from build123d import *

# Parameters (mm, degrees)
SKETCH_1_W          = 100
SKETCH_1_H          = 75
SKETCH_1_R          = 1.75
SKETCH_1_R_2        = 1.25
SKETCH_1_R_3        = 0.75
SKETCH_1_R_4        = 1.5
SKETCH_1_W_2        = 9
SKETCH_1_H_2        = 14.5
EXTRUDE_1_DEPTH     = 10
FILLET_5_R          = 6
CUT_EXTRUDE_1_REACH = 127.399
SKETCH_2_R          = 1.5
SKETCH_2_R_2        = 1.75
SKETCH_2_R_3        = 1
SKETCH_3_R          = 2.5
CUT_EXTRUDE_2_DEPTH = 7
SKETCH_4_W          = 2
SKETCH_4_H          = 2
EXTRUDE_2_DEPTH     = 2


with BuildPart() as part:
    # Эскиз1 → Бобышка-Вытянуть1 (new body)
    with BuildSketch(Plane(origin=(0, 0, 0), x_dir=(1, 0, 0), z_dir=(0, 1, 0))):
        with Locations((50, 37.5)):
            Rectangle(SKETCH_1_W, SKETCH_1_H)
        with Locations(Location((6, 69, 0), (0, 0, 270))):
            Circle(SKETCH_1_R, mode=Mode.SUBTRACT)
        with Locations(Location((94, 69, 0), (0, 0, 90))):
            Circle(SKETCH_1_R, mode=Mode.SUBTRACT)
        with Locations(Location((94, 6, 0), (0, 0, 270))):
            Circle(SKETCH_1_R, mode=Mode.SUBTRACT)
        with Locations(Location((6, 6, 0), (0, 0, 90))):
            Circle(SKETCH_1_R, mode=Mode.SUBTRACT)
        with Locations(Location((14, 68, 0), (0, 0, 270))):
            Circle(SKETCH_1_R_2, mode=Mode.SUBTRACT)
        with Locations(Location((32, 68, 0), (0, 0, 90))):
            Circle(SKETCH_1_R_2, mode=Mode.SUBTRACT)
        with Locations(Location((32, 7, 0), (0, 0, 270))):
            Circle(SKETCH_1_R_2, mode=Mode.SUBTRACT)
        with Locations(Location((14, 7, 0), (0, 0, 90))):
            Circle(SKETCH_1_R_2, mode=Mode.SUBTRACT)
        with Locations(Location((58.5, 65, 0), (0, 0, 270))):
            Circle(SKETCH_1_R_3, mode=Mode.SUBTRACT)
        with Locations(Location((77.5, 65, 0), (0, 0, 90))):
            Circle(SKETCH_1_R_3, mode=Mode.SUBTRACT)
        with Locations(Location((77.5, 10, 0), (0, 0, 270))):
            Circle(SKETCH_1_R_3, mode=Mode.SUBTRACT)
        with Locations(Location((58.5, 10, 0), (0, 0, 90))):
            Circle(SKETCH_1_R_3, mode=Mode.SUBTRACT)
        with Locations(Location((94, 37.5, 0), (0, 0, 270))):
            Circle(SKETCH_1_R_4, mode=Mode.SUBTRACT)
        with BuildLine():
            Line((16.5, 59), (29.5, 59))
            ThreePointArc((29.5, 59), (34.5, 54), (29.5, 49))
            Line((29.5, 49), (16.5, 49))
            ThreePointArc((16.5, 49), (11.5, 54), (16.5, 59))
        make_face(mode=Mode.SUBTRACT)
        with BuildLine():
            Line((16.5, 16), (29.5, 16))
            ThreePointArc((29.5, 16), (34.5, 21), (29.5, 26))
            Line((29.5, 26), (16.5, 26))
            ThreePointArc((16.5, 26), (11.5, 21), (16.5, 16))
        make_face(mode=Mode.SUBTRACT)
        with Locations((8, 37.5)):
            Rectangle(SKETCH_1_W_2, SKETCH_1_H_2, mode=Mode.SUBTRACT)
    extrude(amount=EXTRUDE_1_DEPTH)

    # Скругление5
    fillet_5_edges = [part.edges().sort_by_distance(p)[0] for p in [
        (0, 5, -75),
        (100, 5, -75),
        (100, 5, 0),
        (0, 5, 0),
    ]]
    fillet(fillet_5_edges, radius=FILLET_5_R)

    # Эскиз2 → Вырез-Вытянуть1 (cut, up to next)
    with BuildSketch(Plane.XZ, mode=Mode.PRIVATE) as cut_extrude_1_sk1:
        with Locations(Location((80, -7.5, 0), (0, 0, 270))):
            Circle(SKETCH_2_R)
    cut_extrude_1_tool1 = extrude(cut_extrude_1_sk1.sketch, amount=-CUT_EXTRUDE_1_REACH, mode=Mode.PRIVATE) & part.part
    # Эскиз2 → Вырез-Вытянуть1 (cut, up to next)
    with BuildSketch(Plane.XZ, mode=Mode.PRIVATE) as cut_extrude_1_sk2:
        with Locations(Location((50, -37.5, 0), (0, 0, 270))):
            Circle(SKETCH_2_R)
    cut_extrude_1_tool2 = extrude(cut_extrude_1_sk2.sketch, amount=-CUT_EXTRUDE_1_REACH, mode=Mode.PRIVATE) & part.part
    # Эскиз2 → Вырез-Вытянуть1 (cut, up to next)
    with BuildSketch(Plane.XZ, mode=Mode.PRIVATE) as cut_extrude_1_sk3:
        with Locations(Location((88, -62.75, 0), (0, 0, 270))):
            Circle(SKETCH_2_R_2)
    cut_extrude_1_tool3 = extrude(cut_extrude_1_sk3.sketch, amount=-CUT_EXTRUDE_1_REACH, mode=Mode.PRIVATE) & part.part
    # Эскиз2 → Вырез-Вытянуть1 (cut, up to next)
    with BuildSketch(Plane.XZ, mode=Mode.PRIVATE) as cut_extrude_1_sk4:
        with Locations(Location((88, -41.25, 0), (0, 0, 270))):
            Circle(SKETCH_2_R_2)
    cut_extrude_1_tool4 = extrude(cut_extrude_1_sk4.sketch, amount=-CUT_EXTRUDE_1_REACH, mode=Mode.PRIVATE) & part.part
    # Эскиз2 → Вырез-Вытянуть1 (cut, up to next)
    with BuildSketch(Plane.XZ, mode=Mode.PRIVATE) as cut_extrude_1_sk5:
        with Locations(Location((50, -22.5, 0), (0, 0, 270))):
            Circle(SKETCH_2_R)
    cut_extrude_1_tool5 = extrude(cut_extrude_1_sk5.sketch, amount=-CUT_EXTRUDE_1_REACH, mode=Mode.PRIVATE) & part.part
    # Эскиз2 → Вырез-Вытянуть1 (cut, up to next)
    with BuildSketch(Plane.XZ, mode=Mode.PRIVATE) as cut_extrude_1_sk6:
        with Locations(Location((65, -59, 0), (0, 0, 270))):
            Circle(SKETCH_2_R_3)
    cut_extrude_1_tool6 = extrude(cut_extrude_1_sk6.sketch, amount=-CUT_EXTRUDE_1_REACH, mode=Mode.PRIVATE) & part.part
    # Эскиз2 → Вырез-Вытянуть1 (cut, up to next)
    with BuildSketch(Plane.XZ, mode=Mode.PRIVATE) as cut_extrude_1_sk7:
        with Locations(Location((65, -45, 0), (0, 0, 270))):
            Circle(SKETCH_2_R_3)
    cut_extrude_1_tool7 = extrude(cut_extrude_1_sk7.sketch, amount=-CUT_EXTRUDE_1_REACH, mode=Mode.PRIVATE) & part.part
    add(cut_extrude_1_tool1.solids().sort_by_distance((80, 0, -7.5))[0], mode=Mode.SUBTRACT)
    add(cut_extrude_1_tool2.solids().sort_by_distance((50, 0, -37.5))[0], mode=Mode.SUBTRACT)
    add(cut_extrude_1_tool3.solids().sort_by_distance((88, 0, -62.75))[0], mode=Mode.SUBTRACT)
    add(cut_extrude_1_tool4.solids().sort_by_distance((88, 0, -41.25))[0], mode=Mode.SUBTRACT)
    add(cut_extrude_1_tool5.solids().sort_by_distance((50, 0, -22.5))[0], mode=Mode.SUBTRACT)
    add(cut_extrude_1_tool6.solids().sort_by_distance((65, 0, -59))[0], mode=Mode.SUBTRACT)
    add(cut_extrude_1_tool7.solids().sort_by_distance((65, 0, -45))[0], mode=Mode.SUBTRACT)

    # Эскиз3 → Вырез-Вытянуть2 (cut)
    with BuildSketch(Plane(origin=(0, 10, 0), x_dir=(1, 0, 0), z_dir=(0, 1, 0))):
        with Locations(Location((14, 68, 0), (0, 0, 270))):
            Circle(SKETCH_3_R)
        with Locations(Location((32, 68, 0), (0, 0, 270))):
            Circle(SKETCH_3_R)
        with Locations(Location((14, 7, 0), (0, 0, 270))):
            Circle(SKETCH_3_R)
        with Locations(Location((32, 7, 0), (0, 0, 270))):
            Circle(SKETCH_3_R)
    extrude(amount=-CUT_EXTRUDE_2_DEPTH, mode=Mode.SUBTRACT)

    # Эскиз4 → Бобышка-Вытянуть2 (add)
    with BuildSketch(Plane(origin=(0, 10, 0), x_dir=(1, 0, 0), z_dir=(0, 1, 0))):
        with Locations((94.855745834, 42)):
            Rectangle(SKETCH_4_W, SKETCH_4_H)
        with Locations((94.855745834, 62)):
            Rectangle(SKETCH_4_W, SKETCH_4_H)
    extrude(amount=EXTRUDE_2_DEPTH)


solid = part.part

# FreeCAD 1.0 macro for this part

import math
import FreeCAD as App
import Part
import Sketcher
from FreeCAD import Vector


def edges_at(feature, points):
    """Names of the edges that pass closest to the given points."""
    edges = feature.Shape.Edges
    near = lambda p: min(range(len(edges)), key=lambda i: edges[i].distToShape(Part.Vertex(*p))[0])
    return sorted({f"Edge{near(p) + 1}" for p in points})

doc = App.newDocument("Part")
body = doc.addObject("PartDesign::Body", "Body")

sketch1 = body.newObject("Sketcher::SketchObject", "Sketch")
sketch1.AttachmentSupport = (doc.getObject("XZ_Plane"), [""])
sketch1.MapMode = "FlatFace"
sketch1.addGeometry([
    Part.LineSegment(Vector(0, -75, 0), Vector(0, 0, 0)),
    Part.LineSegment(Vector(0, 0, 0), Vector(100, 0, 0)),
    Part.LineSegment(Vector(100, 0, 0), Vector(100, -75, 0)),
    Part.LineSegment(Vector(100, -75, 0), Vector(0, -75, 0)),
    Part.Circle(Vector(6, -6, 0), Vector(0, 0, 1), 1.75),
    Part.Circle(Vector(14, -7, 0), Vector(0, 0, 1), 1.25),
    Part.Circle(Vector(32, -7, 0), Vector(0, 0, 1), 1.25),
    Part.LineSegment(Vector(29.5, -16, 0), Vector(16.5, -16, 0)),
    Part.ArcOfCircle(Part.Circle(Vector(16.5, -21, 0), Vector(0, 0, 1), 5), math.radians(90), math.radians(270)),
    Part.LineSegment(Vector(16.5, -26, 0), Vector(29.5, -26, 0)),
    Part.ArcOfCircle(Part.Circle(Vector(29.5, -21, 0), Vector(0, 0, 1), 5), math.radians(-90), math.radians(90)),
    Part.Circle(Vector(58.5, -10, 0), Vector(0, 0, 1), 0.75),
    Part.Circle(Vector(77.5, -10, 0), Vector(0, 0, 1), 0.75),
    Part.Circle(Vector(94, -6, 0), Vector(0, 0, 1), 1.75),
    Part.LineSegment(Vector(12.5, -30.25, 0), Vector(3.5, -30.25, 0)),
    Part.LineSegment(Vector(3.5, -30.25, 0), Vector(3.5, -44.75, 0)),
    Part.LineSegment(Vector(3.5, -44.75, 0), Vector(12.5, -44.75, 0)),
    Part.LineSegment(Vector(12.5, -44.75, 0), Vector(12.5, -30.25, 0)),
    Part.ArcOfCircle(Part.Circle(Vector(16.5, -54, 0), Vector(0, 0, 1), 5), math.radians(90), math.radians(270)),
    Part.LineSegment(Vector(16.5, -59, 0), Vector(29.5, -59, 0)),
    Part.ArcOfCircle(Part.Circle(Vector(29.5, -54, 0), Vector(0, 0, 1), 5), math.radians(-90), math.radians(90)),
    Part.LineSegment(Vector(29.5, -49, 0), Vector(16.5, -49, 0)),
    Part.Circle(Vector(6, -69, 0), Vector(0, 0, 1), 1.75),
    Part.Circle(Vector(14, -68, 0), Vector(0, 0, 1), 1.25),
    Part.Circle(Vector(32, -68, 0), Vector(0, 0, 1), 1.25),
    Part.Circle(Vector(94, -37.5, 0), Vector(0, 0, 1), 1.5),
    Part.Circle(Vector(58.5, -65, 0), Vector(0, 0, 1), 0.75),
    Part.Circle(Vector(77.5, -65, 0), Vector(0, 0, 1), 0.75),
    Part.Circle(Vector(94, -69, 0), Vector(0, 0, 1), 1.75),
], False)
sketch1.addConstraint([
    Sketcher.Constraint("Coincident", 0, 2, 1, 1),
    Sketcher.Constraint("Coincident", 1, 2, 2, 1),
    Sketcher.Constraint("Coincident", 2, 2, 3, 1),
    Sketcher.Constraint("Coincident", 3, 2, 0, 1),
    Sketcher.Constraint("Tangent", 7, 2, 8, 1),
    Sketcher.Constraint("Tangent", 8, 2, 9, 1),
    Sketcher.Constraint("Tangent", 9, 2, 10, 1),
    Sketcher.Constraint("Tangent", 10, 2, 7, 1),
    Sketcher.Constraint("Coincident", 14, 2, 15, 1),
    Sketcher.Constraint("Coincident", 15, 2, 16, 1),
    Sketcher.Constraint("Coincident", 16, 2, 17, 1),
    Sketcher.Constraint("Coincident", 17, 2, 14, 1),
    Sketcher.Constraint("Tangent", 18, 2, 19, 1),
    Sketcher.Constraint("Tangent", 19, 2, 20, 1),
    Sketcher.Constraint("Tangent", 20, 2, 21, 1),
    Sketcher.Constraint("Tangent", 21, 2, 18, 1),
    Sketcher.Constraint("Vertical", 0),
    Sketcher.Constraint("Horizontal", 1),
    Sketcher.Constraint("Vertical", 2),
    Sketcher.Constraint("Horizontal", 3),
    Sketcher.Constraint("Horizontal", 7),
    Sketcher.Constraint("Horizontal", 9),
    Sketcher.Constraint("Horizontal", 14),
    Sketcher.Constraint("Vertical", 15),
    Sketcher.Constraint("Horizontal", 16),
    Sketcher.Constraint("Vertical", 17),
    Sketcher.Constraint("Horizontal", 19),
    Sketcher.Constraint("Horizontal", 21),
    Sketcher.Constraint("Coincident", 0, 2, -1, 1),
    Sketcher.Constraint("Equal", 5, 6),
    Sketcher.Constraint("Equal", 11, 12),
    Sketcher.Constraint("Equal", 4, 13),
    Sketcher.Constraint("Equal", 10, 18),
    Sketcher.Constraint("Equal", 13, 22),
    Sketcher.Constraint("Equal", 6, 23),
    Sketcher.Constraint("Equal", 23, 24),
    Sketcher.Constraint("Equal", 12, 26),
    Sketcher.Constraint("Equal", 26, 27),
    Sketcher.Constraint("Equal", 22, 28),
    Sketcher.Constraint("Horizontal", 5, 3, 6, 3),
    Sketcher.Constraint("Horizontal", 11, 3, 12, 3),
    Sketcher.Constraint("Horizontal", 4, 3, 13, 3),
    Sketcher.Constraint("Horizontal", 23, 3, 24, 3),
    Sketcher.Constraint("Horizontal", 26, 3, 27, 3),
    Sketcher.Constraint("Horizontal", 22, 3, 28, 3),
    Sketcher.Constraint("Vertical", 8, 3, 18, 3),
    Sketcher.Constraint("Vertical", 10, 3, 20, 3),
    Sketcher.Constraint("Vertical", 4, 3, 22, 3),
    Sketcher.Constraint("Vertical", 5, 3, 23, 3),
    Sketcher.Constraint("Vertical", 6, 3, 24, 3),
    Sketcher.Constraint("Vertical", 13, 3, 25, 3),
    Sketcher.Constraint("Vertical", 11, 3, 26, 3),
    Sketcher.Constraint("Vertical", 12, 3, 27, 3),
    Sketcher.Constraint("Vertical", 25, 3, 28, 3),
    Sketcher.Constraint("Diameter", 25, 3.0),
    Sketcher.Constraint("Radius", 8, 5.0),
    Sketcher.Constraint("Diameter", 4, 3.5),
    Sketcher.Constraint("Diameter", 5, 2.5),
    Sketcher.Constraint("Diameter", 11, 1.5),
    Sketcher.Constraint("DistanceX", 1, 1, 1, 2, 100.0),
    Sketcher.Constraint("DistanceX", 7, 2, 7, 1, 13.0),
    Sketcher.Constraint("DistanceX", 14, 2, 14, 1, 9.0),
    Sketcher.Constraint("DistanceY", 0, 1, 0, 2, 75.0),
    Sketcher.Constraint("DistanceY", 15, 2, 15, 1, 14.5),
    Sketcher.Constraint("DistanceX", -1, 1, 4, 3, 6.0),
    Sketcher.Constraint("DistanceY", 4, 3, -1, 1, 6.0),
    Sketcher.Constraint("DistanceX", -1, 1, 5, 3, 14.0),
    Sketcher.Constraint("DistanceY", 5, 3, -1, 1, 7.0),
    Sketcher.Constraint("DistanceX", -1, 1, 6, 3, 32.0),
    Sketcher.Constraint("DistanceY", 8, 3, -1, 1, 21.0),
    Sketcher.Constraint("DistanceY", 11, 3, -1, 1, 10.0),
    Sketcher.Constraint("DistanceX", -1, 1, 13, 3, 94.0),
    Sketcher.Constraint("DistanceY", 18, 3, -1, 1, 54.0),
    Sketcher.Constraint("DistanceY", 22, 3, -1, 1, 69.0),
    Sketcher.Constraint("DistanceY", 23, 3, -1, 1, 68.0),
    Sketcher.Constraint("DistanceY", 26, 3, -1, 1, 65.0),
    Sketcher.Constraint("DistanceX", 10, 3, 11, 3, 29.0),
    Sketcher.Constraint("DistanceX", 11, 3, 12, 3, 19.0),
    Sketcher.Constraint("DistanceX", 14, 2, 8, 2, 13.0),
    Sketcher.Constraint("DistanceX", -1, 1, 8, 3, 16.5),
    Sketcher.Constraint("DistanceY", 25, 3, -1, 1, 37.5),
    Sketcher.Constraint("DistanceY", 14, 2, -1, 1, 30.25),
])
pad1 = body.newObject("PartDesign::Pad", "Pad")
pad1.Profile = sketch1
pad1.Length = 10
pad1.Reversed = True
doc.recompute()

fillet = body.newObject("PartDesign::Fillet", "Fillet")
fillet.Base = (pad1, edges_at(pad1, [
    (0, 5, -75),
    (100, 5, -75),
    (100, 5, 0),
    (0, 5, 0),
]))
fillet.Radius = 6

sketch2 = body.newObject("Sketcher::SketchObject", "Sketch001")
sketch2.AttachmentSupport = (doc.getObject("XZ_Plane"), [""])
sketch2.MapMode = "FlatFace"
sketch2.addGeometry(Part.Circle(Vector(80, -7.5, 0), Vector(0, 0, 1), 1.5), False)
sketch2.addConstraint([
    Sketcher.Constraint("Diameter", 0, 3.0),
    Sketcher.Constraint("DistanceX", -1, 1, 0, 3, 80.0),
    Sketcher.Constraint("DistanceY", 0, 3, -1, 1, 7.5),
])
pocket1 = body.newObject("PartDesign::Pocket", "Pocket")
pocket1.Profile = sketch2
pocket1.Type = "UpToFirst"

sketch3 = body.newObject("Sketcher::SketchObject", "Sketch002")
sketch3.AttachmentSupport = (doc.getObject("XZ_Plane"), [""])
sketch3.MapMode = "FlatFace"
sketch3.addGeometry(Part.Circle(Vector(50, -37.5, 0), Vector(0, 0, 1), 1.5), False)
sketch3.addConstraint([
    Sketcher.Constraint("Diameter", 0, 3.0),
    Sketcher.Constraint("DistanceX", -1, 1, 0, 3, 50.0),
    Sketcher.Constraint("DistanceY", 0, 3, -1, 1, 37.5),
])
pocket2 = body.newObject("PartDesign::Pocket", "Pocket001")
pocket2.Profile = sketch3
pocket2.Type = "UpToFirst"

sketch4 = body.newObject("Sketcher::SketchObject", "Sketch003")
sketch4.AttachmentSupport = (doc.getObject("XZ_Plane"), [""])
sketch4.MapMode = "FlatFace"
sketch4.addGeometry(Part.Circle(Vector(88, -62.75, 0), Vector(0, 0, 1), 1.75), False)
sketch4.addConstraint([
    Sketcher.Constraint("Diameter", 0, 3.5),
    Sketcher.Constraint("DistanceX", -1, 1, 0, 3, 88.0),
    Sketcher.Constraint("DistanceY", 0, 3, -1, 1, 62.75),
])
pocket3 = body.newObject("PartDesign::Pocket", "Pocket002")
pocket3.Profile = sketch4
pocket3.Type = "UpToFirst"

sketch5 = body.newObject("Sketcher::SketchObject", "Sketch004")
sketch5.AttachmentSupport = (doc.getObject("XZ_Plane"), [""])
sketch5.MapMode = "FlatFace"
sketch5.addGeometry(Part.Circle(Vector(88, -41.25, 0), Vector(0, 0, 1), 1.75), False)
sketch5.addConstraint([
    Sketcher.Constraint("Diameter", 0, 3.5),
    Sketcher.Constraint("DistanceX", -1, 1, 0, 3, 88.0),
    Sketcher.Constraint("DistanceY", 0, 3, -1, 1, 41.25),
])
pocket4 = body.newObject("PartDesign::Pocket", "Pocket003")
pocket4.Profile = sketch5
pocket4.Type = "UpToFirst"

sketch6 = body.newObject("Sketcher::SketchObject", "Sketch005")
sketch6.AttachmentSupport = (doc.getObject("XZ_Plane"), [""])
sketch6.MapMode = "FlatFace"
sketch6.addGeometry(Part.Circle(Vector(50, -22.5, 0), Vector(0, 0, 1), 1.5), False)
sketch6.addConstraint([
    Sketcher.Constraint("Diameter", 0, 3.0),
    Sketcher.Constraint("DistanceX", -1, 1, 0, 3, 50.0),
    Sketcher.Constraint("DistanceY", 0, 3, -1, 1, 22.5),
])
pocket5 = body.newObject("PartDesign::Pocket", "Pocket004")
pocket5.Profile = sketch6
pocket5.Type = "UpToFirst"

sketch7 = body.newObject("Sketcher::SketchObject", "Sketch006")
sketch7.AttachmentSupport = (doc.getObject("XZ_Plane"), [""])
sketch7.MapMode = "FlatFace"
sketch7.addGeometry(Part.Circle(Vector(65, -59, 0), Vector(0, 0, 1), 1), False)
sketch7.addConstraint([
    Sketcher.Constraint("Diameter", 0, 2.0),
    Sketcher.Constraint("DistanceX", -1, 1, 0, 3, 65.0),
    Sketcher.Constraint("DistanceY", 0, 3, -1, 1, 59.0),
])
pocket6 = body.newObject("PartDesign::Pocket", "Pocket005")
pocket6.Profile = sketch7
pocket6.Type = "UpToFirst"

sketch8 = body.newObject("Sketcher::SketchObject", "Sketch007")
sketch8.AttachmentSupport = (doc.getObject("XZ_Plane"), [""])
sketch8.MapMode = "FlatFace"
sketch8.addGeometry(Part.Circle(Vector(65, -45, 0), Vector(0, 0, 1), 1), False)
sketch8.addConstraint([
    Sketcher.Constraint("Diameter", 0, 2.0),
    Sketcher.Constraint("DistanceX", -1, 1, 0, 3, 65.0),
    Sketcher.Constraint("DistanceY", 0, 3, -1, 1, 45.0),
])
pocket7 = body.newObject("PartDesign::Pocket", "Pocket006")
pocket7.Profile = sketch8
pocket7.Type = "UpToFirst"

sketch9 = body.newObject("Sketcher::SketchObject", "Sketch008")
sketch9.AttachmentSupport = (doc.getObject("XZ_Plane"), [""])
sketch9.MapMode = "FlatFace"
sketch9.AttachmentOffset = App.Placement(Vector(0, 0, -10), App.Rotation())
sketch9.addGeometry([
    Part.Circle(Vector(14, -68, 0), Vector(0, 0, 1), 2.5),
    Part.Circle(Vector(32, -68, 0), Vector(0, 0, 1), 2.5),
    Part.Circle(Vector(14, -7, 0), Vector(0, 0, 1), 2.5),
    Part.Circle(Vector(32, -7, 0), Vector(0, 0, 1), 2.5),
], False)
sketch9.addConstraint([
    Sketcher.Constraint("Equal", 0, 1),
    Sketcher.Constraint("Equal", 1, 2),
    Sketcher.Constraint("Equal", 2, 3),
    Sketcher.Constraint("Horizontal", 0, 3, 1, 3),
    Sketcher.Constraint("Horizontal", 2, 3, 3, 3),
    Sketcher.Constraint("Vertical", 0, 3, 2, 3),
    Sketcher.Constraint("Vertical", 1, 3, 3, 3),
    Sketcher.Constraint("Diameter", 0, 5.0),
    Sketcher.Constraint("DistanceX", -1, 1, 0, 3, 14.0),
    Sketcher.Constraint("DistanceY", 0, 3, -1, 1, 68.0),
    Sketcher.Constraint("DistanceX", -1, 1, 1, 3, 32.0),
    Sketcher.Constraint("DistanceY", 2, 3, -1, 1, 7.0),
])
pocket8 = body.newObject("PartDesign::Pocket", "Pocket007")
pocket8.Profile = sketch9
pocket8.Length = 7
pocket8.Reversed = True

sketch10 = body.newObject("Sketcher::SketchObject", "Sketch009")
sketch10.AttachmentSupport = (doc.getObject("XZ_Plane"), [""])
sketch10.MapMode = "FlatFace"
sketch10.AttachmentOffset = App.Placement(Vector(0, 0, -10), App.Rotation())
sketch10.addGeometry([
    Part.LineSegment(Vector(93.855746, -43, 0), Vector(93.855746, -41, 0)),
    Part.LineSegment(Vector(93.855746, -41, 0), Vector(95.855746, -41, 0)),
    Part.LineSegment(Vector(95.855746, -41, 0), Vector(95.855746, -43, 0)),
    Part.LineSegment(Vector(95.855746, -43, 0), Vector(93.855746, -43, 0)),
    Part.LineSegment(Vector(93.855746, -63, 0), Vector(93.855746, -61, 0)),
    Part.LineSegment(Vector(93.855746, -61, 0), Vector(95.855746, -61, 0)),
    Part.LineSegment(Vector(95.855746, -61, 0), Vector(95.855746, -63, 0)),
    Part.LineSegment(Vector(95.855746, -63, 0), Vector(93.855746, -63, 0)),
], False)
sketch10.addConstraint([
    Sketcher.Constraint("Coincident", 0, 2, 1, 1),
    Sketcher.Constraint("Coincident", 1, 2, 2, 1),
    Sketcher.Constraint("Coincident", 2, 2, 3, 1),
    Sketcher.Constraint("Coincident", 3, 2, 0, 1),
    Sketcher.Constraint("Coincident", 4, 2, 5, 1),
    Sketcher.Constraint("Coincident", 5, 2, 6, 1),
    Sketcher.Constraint("Coincident", 6, 2, 7, 1),
    Sketcher.Constraint("Coincident", 7, 2, 4, 1),
    Sketcher.Constraint("Vertical", 0),
    Sketcher.Constraint("Horizontal", 1),
    Sketcher.Constraint("Vertical", 2),
    Sketcher.Constraint("Horizontal", 3),
    Sketcher.Constraint("Vertical", 4),
    Sketcher.Constraint("Horizontal", 5),
    Sketcher.Constraint("Vertical", 6),
    Sketcher.Constraint("Horizontal", 7),
    Sketcher.Constraint("Vertical", 3, 2, 4, 2),
    Sketcher.Constraint("Vertical", 2, 2, 5, 2),
    Sketcher.Constraint("Equal", 7, 0),
    Sketcher.Constraint("Equal", 2, 4),
    Sketcher.Constraint("DistanceX", 1, 1, 1, 2, 2.0),
    Sketcher.Constraint("DistanceY", 0, 2, -1, 1, 41.0),
    Sketcher.Constraint("DistanceY", 4, 2, -1, 1, 61.0),
    Sketcher.Constraint("DistanceX", -1, 1, 0, 2, 93.855746),
])
pad2 = body.newObject("PartDesign::Pad", "Pad001")
pad2.Profile = sketch10
pad2.Length = 2
pad2.Reversed = True

doc.recompute()
